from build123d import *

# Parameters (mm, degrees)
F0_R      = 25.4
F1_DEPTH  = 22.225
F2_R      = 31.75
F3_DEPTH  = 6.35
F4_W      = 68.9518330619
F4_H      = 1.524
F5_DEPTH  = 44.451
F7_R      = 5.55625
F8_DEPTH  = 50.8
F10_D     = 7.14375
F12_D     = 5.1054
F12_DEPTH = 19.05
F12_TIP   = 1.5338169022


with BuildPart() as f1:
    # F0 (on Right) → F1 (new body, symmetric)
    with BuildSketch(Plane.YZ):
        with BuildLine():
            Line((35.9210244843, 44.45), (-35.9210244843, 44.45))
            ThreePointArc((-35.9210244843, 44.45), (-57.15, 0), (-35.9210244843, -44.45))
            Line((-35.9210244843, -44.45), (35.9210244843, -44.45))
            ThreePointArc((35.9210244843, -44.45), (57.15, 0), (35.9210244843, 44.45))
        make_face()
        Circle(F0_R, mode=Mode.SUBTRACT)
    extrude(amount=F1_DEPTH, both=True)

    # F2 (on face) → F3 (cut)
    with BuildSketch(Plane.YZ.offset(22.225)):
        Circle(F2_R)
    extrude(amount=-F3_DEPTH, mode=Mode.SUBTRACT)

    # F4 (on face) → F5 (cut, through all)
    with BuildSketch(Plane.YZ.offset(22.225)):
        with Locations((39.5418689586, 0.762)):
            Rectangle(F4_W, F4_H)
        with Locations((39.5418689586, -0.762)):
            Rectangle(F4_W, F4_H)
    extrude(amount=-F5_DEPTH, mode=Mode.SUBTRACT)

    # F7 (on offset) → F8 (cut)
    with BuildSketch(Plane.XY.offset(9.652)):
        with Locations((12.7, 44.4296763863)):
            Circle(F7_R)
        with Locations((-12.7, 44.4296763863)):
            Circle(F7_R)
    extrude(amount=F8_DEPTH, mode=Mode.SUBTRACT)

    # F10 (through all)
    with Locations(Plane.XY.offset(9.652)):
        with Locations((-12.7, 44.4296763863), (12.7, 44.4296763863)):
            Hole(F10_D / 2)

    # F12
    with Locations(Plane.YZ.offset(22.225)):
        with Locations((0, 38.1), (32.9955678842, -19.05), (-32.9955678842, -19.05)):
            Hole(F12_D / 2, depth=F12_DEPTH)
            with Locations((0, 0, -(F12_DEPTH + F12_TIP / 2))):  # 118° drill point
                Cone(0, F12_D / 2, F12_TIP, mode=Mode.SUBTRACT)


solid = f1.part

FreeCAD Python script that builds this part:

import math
import FreeCAD as App
import Part
import Sketcher
Q = App.Units.Quantity

doc = App.newDocument("Part")
body = doc.addObject("PartDesign::Body", "Body")

sketch1 = body.newObject("Sketcher::SketchObject", "Sketch")
sketch1.AttachmentSupport = (doc.getObject("YZ_Plane"), [""])
sketch1.MapMode = "FlatFace"
sketch1.addGeometry([
    Part.LineSegment(App.Vector(36, 44, 0), App.Vector(-36, 44, 0)),
    Part.ArcOfCircle(Part.Circle(App.Vector(0, 0, 0), App.Vector(0, 0, 1), 57), math.radians(129), math.radians(231)),
    Part.LineSegment(App.Vector(-36, -44, 0), App.Vector(36, -44, 0)),
    Part.ArcOfCircle(Part.Circle(App.Vector(0, 0, 0), App.Vector(0, 0, 1), 57), math.radians(-51), math.radians(51)),
    Part.Circle(App.Vector(0, 0, 0), App.Vector(0, 0, 1), 25),
], False)
sketch1.addConstraint([
    Sketcher.Constraint("Coincident", 0, 2, 1, 1),
    Sketcher.Constraint("Coincident", 1, 2, 2, 1),
    Sketcher.Constraint("Coincident", 2, 2, 3, 1),
    Sketcher.Constraint("Coincident", 3, 2, 0, 1),
    Sketcher.Constraint("Horizontal", 0),
    Sketcher.Constraint("Horizontal", 2),
    Sketcher.Constraint("Coincident", 1, 3, -1, 1),
    Sketcher.Constraint("Coincident", 3, 3, -1, 1),
    Sketcher.Constraint("Coincident", 4, 3, -1, 1),
    Sketcher.Constraint("Equal", 1, 3),
    Sketcher.Constraint("Vertical", 0, 2, 1, 2),
    Sketcher.Constraint("Diameter", 4, Q("2 in")),
    Sketcher.Constraint("Radius", 1, Q("2.25 in")),
    Sketcher.Constraint("DistanceY", 1, 2, 0, 2, Q("3.5 in")),
])
pad1 = body.newObject("PartDesign::Pad", "Pad")
pad1.Profile = sketch1
pad1.Length = Q("1.75 in")
pad1.Midplane = True

sketch2 = body.newObject("Sketcher::SketchObject", "Sketch001")
sketch2.AttachmentSupport = (doc.getObject("YZ_Plane"), [""])
sketch2.MapMode = "FlatFace"
sketch2.AttachmentOffset = App.Placement(App.Vector(0, 0, 0.875 * 25.4), App.Rotation())
sketch2.addGeometry(Part.Circle(App.Vector(0, 0, 0), App.Vector(0, 0, 1), 32), False)
sketch2.addConstraint([
    Sketcher.Constraint("Coincident", 0, 3, -1, 1),
    Sketcher.Constraint("Diameter", 0, Q("2.5 in")),
])
pocket1 = body.newObject("PartDesign::Pocket", "Pocket")
pocket1.Profile = sketch2
pocket1.Length = Q("0.25 in")

sketch3 = body.newObject("Sketcher::SketchObject", "Sketch002")
sketch3.AttachmentSupport = (doc.getObject("YZ_Plane"), [""])
sketch3.MapMode = "FlatFace"
sketch3.AttachmentOffset = App.Placement(App.Vector(0, 0, 0.875 * 25.4), App.Rotation())
sketch3.addGeometry([
    Part.LineSegment(App.Vector(5.1, 1.5, 0), App.Vector(5.1, -1.5, 0)),
    Part.LineSegment(App.Vector(5.1, -1.5, 0), App.Vector(74, -1.5, 0)),
    Part.LineSegment(App.Vector(74, -1.5, 0), App.Vector(74, 1.5, 0)),
    Part.LineSegment(App.Vector(74, 1.5, 0), App.Vector(5.1, 1.5, 0)),
], False)
sketch3.addConstraint([
    Sketcher.Constraint("Coincident", 0, 2, 1, 1),
    Sketcher.Constraint("Coincident", 1, 2, 2, 1),
    Sketcher.Constraint("Coincident", 2, 2, 3, 1),
    Sketcher.Constraint("Coincident", 3, 2, 0, 1),
    Sketcher.Constraint("Vertical", 0),
    Sketcher.Constraint("Horizontal", 1),
    Sketcher.Constraint("Vertical", 2),
    Sketcher.Constraint("Horizontal", 3),
    Sketcher.Constraint("DistanceY", 0, 2, 0, 1, Q("0.12 in")),
    Sketcher.Constraint("DistanceY", 0, 2, -1, 1, Q("0.06 in")),
    Sketcher.Constraint("DistanceX", 1, 1, 1, 2, Q("68.951833 mm")),
    Sketcher.Constraint("DistanceX", -1, 1, 0, 2, Q("5.065952 mm")),
])
pocket2 = body.newObject("PartDesign::Pocket", "Pocket001")
pocket2.Profile = sketch3
pocket2.Type = "ThroughAll"

sketch4 = body.newObject("Sketcher::SketchObject", "Sketch003")
sketch4.AttachmentSupport = (doc.getObject("XY_Plane"), [""])
sketch4.MapMode = "FlatFace"
sketch4.AttachmentOffset = App.Placement(App.Vector(0, 0, 0.38 * 25.4), App.Rotation())
sketch4.addGeometry([
    Part.Circle(App.Vector(13, 44, 0), App.Vector(0, 0, 1), 6),
    Part.Circle(App.Vector(-13, 44, 0), App.Vector(0, 0, 1), 6),
], False)
sketch4.addConstraint([
    Sketcher.Constraint("Equal", 0, 1),
    Sketcher.Constraint("Symmetric", 0, 3, 1, 3, -2),
    Sketcher.Constraint("Diameter", 0, Q("0.4375 in")),
    Sketcher.Constraint("DistanceX", 1, 3, 0, 3, Q("1 in")),
    Sketcher.Constraint("DistanceY", -1, 1, 0, 3, Q("1.7491999 in")),
])
pocket3 = body.newObject("PartDesign::Pocket", "Pocket002")
pocket3.Profile = sketch4
pocket3.Length = Q("2 in")
pocket3.Reversed = True

sketch5 = body.newObject("Sketcher::SketchObject", "Sketch004")
sketch5.AttachmentSupport = (doc.getObject("XY_Plane"), [""])
sketch5.MapMode = "FlatFace"
sketch5.AttachmentOffset = App.Placement(App.Vector(0, 0, 0.38 * 25.4), App.Rotation())
sketch5.addGeometry([
    Part.Circle(App.Vector(-12.7, 44.4, 0), App.Vector(0, 0, 1), 3.6),
    Part.Circle(App.Vector(12.7, 44.4, 0), App.Vector(0, 0, 1), 3.6),
], False)
sketch5.addConstraint([
    Sketcher.Constraint("Equal", 0, 1),
    Sketcher.Constraint("Symmetric", 0, 3, 1, 3, -2),
    Sketcher.Constraint("Diameter", 0, Q("0.28125 in")),
    Sketcher.Constraint("DistanceX", 0, 3, 1, 3, Q("1 in")),
    Sketcher.Constraint("DistanceY", -1, 1, 0, 3, Q("1.7491999 in")),
])
doc.recompute()
hole = body.newObject("PartDesign::Hole", "Hole")
hole.Profile = sketch5
hole.ThreadType = "None"
hole.Diameter = Q("0.28125 in")
hole.DepthType = "ThroughAll"

sketch6 = body.newObject("Sketcher::SketchObject", "Sketch005")
sketch6.AttachmentSupport = (doc.getObject("YZ_Plane"), [""])
sketch6.MapMode = "FlatFace"
sketch6.AttachmentOffset = App.Placement(App.Vector(0, 0, 0.875 * 25.4), App.Rotation())
sketch6.addGeometry([
    Part.Circle(App.Vector(0, 38.1, 0), App.Vector(0, 0, 1), 2.6),
    Part.Circle(App.Vector(33, -19.1, 0), App.Vector(0, 0, 1), 2.6),
    Part.Circle(App.Vector(-33, -19.1, 0), App.Vector(0, 0, 1), 2.6),
], False)
sketch6.addConstraint([
    Sketcher.Constraint("Equal", 0, 1),
    Sketcher.Constraint("Equal", 1, 2),
    Sketcher.Constraint("Symmetric", 1, 3, 2, 3, -2),
    Sketcher.Constraint("PointOnObject", 0, 3, -2),
    Sketcher.Constraint("Diameter", 0, Q("0.201 in")),
    Sketcher.Constraint("DistanceY", -1, 1, 0, 3, Q("1.5 in")),
    Sketcher.Constraint("DistanceY", 1, 3, -1, 1, Q("0.75 in")),
    Sketcher.Constraint("DistanceX", -1, 1, 1, 3, Q("32.995568 mm")),
])
doc.recompute()
hole2 = body.newObject("PartDesign::Hole", "Hole001")
hole2.Profile = sketch6
hole2.ThreadType = "None"
hole2.Diameter = Q("0.201 in")
hole2.DepthType = "Dimension"
hole2.Depth = Q("0.75 in")
hole2.DrillPoint = "Angled"
hole2.DrillPointAngle = 118

doc.recompute()
